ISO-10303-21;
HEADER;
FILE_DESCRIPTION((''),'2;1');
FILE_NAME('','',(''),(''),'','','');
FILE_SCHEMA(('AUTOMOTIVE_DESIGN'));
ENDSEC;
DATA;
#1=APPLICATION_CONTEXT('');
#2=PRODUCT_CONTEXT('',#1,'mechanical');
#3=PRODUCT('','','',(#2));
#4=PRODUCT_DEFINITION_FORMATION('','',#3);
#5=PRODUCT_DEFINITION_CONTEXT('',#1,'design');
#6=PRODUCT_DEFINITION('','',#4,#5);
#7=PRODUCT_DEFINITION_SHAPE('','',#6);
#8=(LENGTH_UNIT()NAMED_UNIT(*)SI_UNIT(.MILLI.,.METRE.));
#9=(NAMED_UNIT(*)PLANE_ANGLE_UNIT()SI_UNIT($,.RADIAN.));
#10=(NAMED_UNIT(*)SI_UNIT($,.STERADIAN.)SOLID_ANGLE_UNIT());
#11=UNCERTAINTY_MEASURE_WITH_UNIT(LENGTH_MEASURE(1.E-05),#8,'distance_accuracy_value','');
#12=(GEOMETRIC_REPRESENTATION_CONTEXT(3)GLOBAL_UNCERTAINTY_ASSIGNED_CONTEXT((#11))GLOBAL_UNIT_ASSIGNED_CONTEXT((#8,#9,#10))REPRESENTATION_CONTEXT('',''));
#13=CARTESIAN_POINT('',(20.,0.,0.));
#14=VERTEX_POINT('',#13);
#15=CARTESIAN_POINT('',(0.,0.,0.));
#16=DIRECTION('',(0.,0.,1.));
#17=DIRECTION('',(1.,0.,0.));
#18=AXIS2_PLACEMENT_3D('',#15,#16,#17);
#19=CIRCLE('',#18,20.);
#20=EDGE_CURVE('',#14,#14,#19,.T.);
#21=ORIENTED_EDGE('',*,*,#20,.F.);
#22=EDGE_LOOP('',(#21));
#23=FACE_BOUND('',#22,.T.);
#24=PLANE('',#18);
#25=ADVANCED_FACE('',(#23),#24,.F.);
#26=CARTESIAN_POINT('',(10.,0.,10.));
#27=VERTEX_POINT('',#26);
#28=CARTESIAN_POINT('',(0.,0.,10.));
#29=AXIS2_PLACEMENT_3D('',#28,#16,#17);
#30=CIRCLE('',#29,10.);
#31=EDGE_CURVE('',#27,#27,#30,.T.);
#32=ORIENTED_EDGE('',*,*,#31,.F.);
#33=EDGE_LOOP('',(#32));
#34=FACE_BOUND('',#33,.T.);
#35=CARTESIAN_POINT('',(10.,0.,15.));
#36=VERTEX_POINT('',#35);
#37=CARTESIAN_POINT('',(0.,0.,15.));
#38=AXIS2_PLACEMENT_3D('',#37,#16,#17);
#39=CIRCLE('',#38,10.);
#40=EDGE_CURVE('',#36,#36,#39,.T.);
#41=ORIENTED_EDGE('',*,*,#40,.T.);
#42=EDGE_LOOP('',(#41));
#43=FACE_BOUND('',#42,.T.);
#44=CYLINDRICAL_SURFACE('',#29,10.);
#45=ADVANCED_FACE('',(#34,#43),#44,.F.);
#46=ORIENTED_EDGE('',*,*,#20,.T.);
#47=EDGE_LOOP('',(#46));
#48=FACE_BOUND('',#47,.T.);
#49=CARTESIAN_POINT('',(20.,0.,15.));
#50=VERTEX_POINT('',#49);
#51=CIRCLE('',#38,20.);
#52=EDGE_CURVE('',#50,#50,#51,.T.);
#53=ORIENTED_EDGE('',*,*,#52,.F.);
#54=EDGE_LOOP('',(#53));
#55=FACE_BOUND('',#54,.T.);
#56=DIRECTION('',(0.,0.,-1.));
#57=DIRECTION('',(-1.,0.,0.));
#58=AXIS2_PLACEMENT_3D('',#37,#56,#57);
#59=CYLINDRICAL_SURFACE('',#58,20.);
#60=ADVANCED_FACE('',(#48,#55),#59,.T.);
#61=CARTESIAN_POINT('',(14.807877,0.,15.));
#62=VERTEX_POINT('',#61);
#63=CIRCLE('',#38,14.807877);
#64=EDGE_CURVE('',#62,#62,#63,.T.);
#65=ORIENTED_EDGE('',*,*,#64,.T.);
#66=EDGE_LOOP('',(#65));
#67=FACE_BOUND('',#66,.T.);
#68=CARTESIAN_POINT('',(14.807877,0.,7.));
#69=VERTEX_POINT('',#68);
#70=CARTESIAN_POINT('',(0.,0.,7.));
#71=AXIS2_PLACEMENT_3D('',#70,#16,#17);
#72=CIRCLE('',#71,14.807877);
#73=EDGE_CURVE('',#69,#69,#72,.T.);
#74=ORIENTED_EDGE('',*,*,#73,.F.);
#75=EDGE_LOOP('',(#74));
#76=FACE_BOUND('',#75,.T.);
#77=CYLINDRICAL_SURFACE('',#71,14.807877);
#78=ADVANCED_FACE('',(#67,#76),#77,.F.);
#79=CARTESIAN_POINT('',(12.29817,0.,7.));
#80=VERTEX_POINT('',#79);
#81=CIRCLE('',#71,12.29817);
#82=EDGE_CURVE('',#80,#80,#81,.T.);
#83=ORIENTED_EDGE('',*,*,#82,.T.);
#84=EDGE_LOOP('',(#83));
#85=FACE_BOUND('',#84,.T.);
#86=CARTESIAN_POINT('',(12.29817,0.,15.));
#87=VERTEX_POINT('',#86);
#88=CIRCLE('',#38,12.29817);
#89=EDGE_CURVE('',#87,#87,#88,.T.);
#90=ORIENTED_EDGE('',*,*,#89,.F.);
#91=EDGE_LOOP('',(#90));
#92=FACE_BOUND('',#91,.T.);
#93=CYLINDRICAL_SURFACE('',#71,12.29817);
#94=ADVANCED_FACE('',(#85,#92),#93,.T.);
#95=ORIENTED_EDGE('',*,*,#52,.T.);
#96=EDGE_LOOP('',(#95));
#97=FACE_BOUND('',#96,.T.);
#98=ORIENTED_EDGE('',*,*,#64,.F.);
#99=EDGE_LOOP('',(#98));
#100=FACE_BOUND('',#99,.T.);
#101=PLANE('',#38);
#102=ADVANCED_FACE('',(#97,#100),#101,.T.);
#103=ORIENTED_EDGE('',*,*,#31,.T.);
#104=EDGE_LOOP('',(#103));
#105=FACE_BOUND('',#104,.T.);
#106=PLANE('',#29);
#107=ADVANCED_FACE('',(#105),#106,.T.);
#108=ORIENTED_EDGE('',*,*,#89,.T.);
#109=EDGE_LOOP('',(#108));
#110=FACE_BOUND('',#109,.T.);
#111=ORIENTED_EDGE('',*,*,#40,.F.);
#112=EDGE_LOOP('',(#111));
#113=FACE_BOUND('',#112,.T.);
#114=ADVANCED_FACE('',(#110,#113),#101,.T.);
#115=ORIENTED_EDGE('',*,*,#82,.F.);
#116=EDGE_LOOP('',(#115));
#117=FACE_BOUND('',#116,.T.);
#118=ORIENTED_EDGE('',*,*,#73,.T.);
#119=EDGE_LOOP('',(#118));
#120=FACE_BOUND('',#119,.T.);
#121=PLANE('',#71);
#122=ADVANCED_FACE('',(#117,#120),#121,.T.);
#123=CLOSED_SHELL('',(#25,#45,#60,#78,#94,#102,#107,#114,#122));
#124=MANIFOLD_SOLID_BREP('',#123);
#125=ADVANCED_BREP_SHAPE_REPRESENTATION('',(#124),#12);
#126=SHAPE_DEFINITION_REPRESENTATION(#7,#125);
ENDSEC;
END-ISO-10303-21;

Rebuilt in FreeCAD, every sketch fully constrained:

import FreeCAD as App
import Part
import Sketcher

V = App.Vector
Q = App.Units.Quantity

doc = App.newDocument("Part")
body = doc.addObject("PartDesign::Body", "Body")

# Sketch on XY plane
sketch1 = doc.addObject("Sketcher::SketchObject", "Sketch")
body.addObject(sketch1)
sketch1.AttachmentSupport = (doc.XY_Plane, [""])
sketch1.MapMode = "FlatFace"
sketch1.addGeometry(Part.Circle(V(0, 0, 0), V(0, 0, 1), 20), False)
sketch1.addConstraint(Sketcher.Constraint("Coincident", 0, 3, -1, 1))
sketch1.addConstraint(Sketcher.Constraint("Diameter", 0, Q("40 mm")))
pad1 = doc.addObject("PartDesign::Pad", "Pad")
body.addObject(pad1)
pad1.Profile = sketch1
pad1.Length = 15

# Sketch on XY plane
sketch2 = doc.addObject("Sketcher::SketchObject", "Sketch001")
body.addObject(sketch2)
sketch2.AttachmentSupport = (doc.XY_Plane, [""])
sketch2.MapMode = "FlatFace"
sketch2.AttachmentOffset = App.Placement(V(0, 0, 15), App.Rotation())
sketch2.addGeometry(Part.Circle(V(0, 0, 0), V(0, 0, 1), 10), False)
sketch2.addConstraint(Sketcher.Constraint("Coincident", 0, 3, -1, 1))
sketch2.addConstraint(Sketcher.Constraint("Diameter", 0, Q("20 mm")))
pocket1 = doc.addObject("PartDesign::Pocket", "Pocket")
body.addObject(pocket1)
pocket1.Profile = sketch2
pocket1.Length = 5

# Sketch on XY plane
sketch3 = doc.addObject("Sketcher::SketchObject", "Sketch002")
body.addObject(sketch3)
sketch3.AttachmentSupport = (doc.XY_Plane, [""])
sketch3.MapMode = "FlatFace"
sketch3.AttachmentOffset = App.Placement(V(0, 0, 15), App.Rotation())
sketch3.addGeometry(Part.Circle(V(0, 0, 0), V(0, 0, 1), 15), False)
sketch3.addGeometry(Part.Circle(V(0, 0, 0), V(0, 0, 1), 12), False)
sketch3.addConstraint(Sketcher.Constraint("Coincident", 0, 3, -1, 1))
sketch3.addConstraint(Sketcher.Constraint("Coincident", 1, 3, -1, 1))
sketch3.addConstraint(Sketcher.Constraint("Diameter", 1, Q("24.59634 mm")))
sketch3.addConstraint(Sketcher.Constraint("Diameter", 0, Q("29.615754 mm")))
pocket2 = doc.addObject("PartDesign::Pocket", "Pocket001")
body.addObject(pocket2)
pocket2.Profile = sketch3
pocket2.Length = 8

doc.recompute()
